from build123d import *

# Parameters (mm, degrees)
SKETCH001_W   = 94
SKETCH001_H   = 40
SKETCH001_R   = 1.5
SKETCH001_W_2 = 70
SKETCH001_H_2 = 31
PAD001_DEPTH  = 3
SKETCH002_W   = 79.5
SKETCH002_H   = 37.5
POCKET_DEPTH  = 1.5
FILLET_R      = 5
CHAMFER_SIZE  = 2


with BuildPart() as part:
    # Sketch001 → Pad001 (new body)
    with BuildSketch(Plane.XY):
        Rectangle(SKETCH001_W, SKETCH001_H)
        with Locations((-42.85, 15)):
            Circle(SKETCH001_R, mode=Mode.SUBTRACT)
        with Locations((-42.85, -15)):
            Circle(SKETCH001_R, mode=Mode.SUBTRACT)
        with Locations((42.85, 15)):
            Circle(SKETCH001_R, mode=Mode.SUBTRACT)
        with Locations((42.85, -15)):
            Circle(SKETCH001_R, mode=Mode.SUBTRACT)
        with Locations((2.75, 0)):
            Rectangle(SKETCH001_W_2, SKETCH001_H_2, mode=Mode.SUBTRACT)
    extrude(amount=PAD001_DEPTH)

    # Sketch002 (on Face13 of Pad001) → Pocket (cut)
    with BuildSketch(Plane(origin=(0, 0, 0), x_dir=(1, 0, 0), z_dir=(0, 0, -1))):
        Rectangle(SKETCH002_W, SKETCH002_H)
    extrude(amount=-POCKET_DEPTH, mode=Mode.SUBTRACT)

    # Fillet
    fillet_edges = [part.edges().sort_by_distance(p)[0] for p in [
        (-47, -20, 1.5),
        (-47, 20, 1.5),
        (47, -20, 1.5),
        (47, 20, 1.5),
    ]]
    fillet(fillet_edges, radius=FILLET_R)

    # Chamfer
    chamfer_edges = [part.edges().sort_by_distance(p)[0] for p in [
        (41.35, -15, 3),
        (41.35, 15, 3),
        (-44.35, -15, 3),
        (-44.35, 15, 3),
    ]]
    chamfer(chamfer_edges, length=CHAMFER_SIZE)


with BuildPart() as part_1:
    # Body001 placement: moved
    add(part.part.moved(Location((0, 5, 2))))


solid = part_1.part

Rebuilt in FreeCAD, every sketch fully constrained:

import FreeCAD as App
import Part
import Sketcher
from FreeCAD import Vector
Q = App.Units.Quantity


def edges_at(feature, points):
    """Names of the edges that pass closest to the given points."""
    edges = feature.Shape.Edges
    near = lambda p: min(range(len(edges)), key=lambda i: edges[i].distToShape(Part.Vertex(*p))[0])
    return sorted({f"Edge{near(p) + 1}" for p in points})


def add_polygon(sketch, points):
    """Adds a closed chain of lines whose ends are joined by coincident constraints."""
    first, n = sketch.GeometryCount, len(points)
    for a, b in zip(points, points[1:] + points[:1]):
        sketch.addGeometry(Part.LineSegment(App.Vector(*a, 0), App.Vector(*b, 0)), False)
    for i in range(n):
        sketch.addConstraint(Sketcher.Constraint("Coincident", first + i, 2, first + (i + 1) % n, 1))

doc = App.newDocument("Part")
body = doc.addObject("PartDesign::Body", "Body")

# Sketch on XY plane
sketch1 = body.newObject("Sketcher::SketchObject", "Sketch")
sketch1.AttachmentSupport = (doc.getObject("XY_Plane"), [""])
sketch1.MapMode = "FlatFace"
add_polygon(sketch1, [(-47, 20), (-47, -20), (47, -20), (47, 20)])  # lines 0-3
sketch1.addGeometry(Part.Circle(Vector(-42.9, -15, 0), Vector(0, 0, 1), 1.5), False)  # 4
sketch1.addGeometry(Part.Circle(Vector(42.9, -15, 0), Vector(0, 0, 1), 1.5), False)  # 5
sketch1.addGeometry(Part.Circle(Vector(-42.9, 15, 0), Vector(0, 0, 1), 1.5), False)  # 6
add_polygon(sketch1, [(37.8, -15.5), (-32.2, -15.5), (-32.2, 15.5), (37.8, 15.5)])  # lines 7-10
sketch1.addGeometry(Part.Circle(Vector(42.9, 15, 0), Vector(0, 0, 1), 1.5), False)  # 11
sketch1.addConstraint([
    Sketcher.Constraint("Vertical", 0),
    Sketcher.Constraint("Horizontal", 1),
    Sketcher.Constraint("Vertical", 2),
    Sketcher.Constraint("Horizontal", 3),
    Sketcher.Constraint("Horizontal", 7),
    Sketcher.Constraint("Vertical", 8),
    Sketcher.Constraint("Horizontal", 9),
    Sketcher.Constraint("Vertical", 10),
    Sketcher.Constraint("Equal", 4, 5),
    Sketcher.Constraint("Equal", 5, 6),
    Sketcher.Constraint("Equal", 6, 11),
    Sketcher.Constraint("Symmetric", 5, 3, 6, 3, -1, 1),
    Sketcher.Constraint("Symmetric", 4, 3, 11, 3, -1, 1),
    Sketcher.Constraint("Symmetric", 0, 2, 2, 2, -1, 1),
    Sketcher.Constraint("Symmetric", 4, 3, 5, 3, -2),
    Sketcher.Constraint("Diameter", 4, Q("3 mm")),
    Sketcher.Constraint("DistanceX", 1, 1, 1, 2, Q("94 mm")),
    Sketcher.Constraint("DistanceX", 7, 2, 7, 1, Q("70 mm")),
    Sketcher.Constraint("DistanceY", 0, 2, 0, 1, Q("40 mm")),
    Sketcher.Constraint("DistanceY", 8, 1, 8, 2, Q("31 mm")),
    Sketcher.Constraint("DistanceY", 4, 3, -1, 1, Q("15 mm")),
    Sketcher.Constraint("DistanceY", 7, 2, -1, 1, Q("15.5 mm")),
    Sketcher.Constraint("DistanceX", 4, 3, 5, 3, Q("85.7 mm")),
    Sketcher.Constraint("DistanceX", 4, 3, 7, 2, Q("10.6 mm")),
])
pad1 = body.newObject("PartDesign::Pad", "Pad")
pad1.Profile = sketch1
pad1.Length = 3

# Sketch on XY plane
sketch2 = body.newObject("Sketcher::SketchObject", "Sketch001")
sketch2.AttachmentSupport = (doc.getObject("XY_Plane"), [""])
sketch2.MapMode = "FlatFace"
add_polygon(sketch2, [(-40, -19), (-40, 19), (40, 19), (40, -19)])  # lines 0-3
sketch2.addConstraint([
    Sketcher.Constraint("Vertical", 0),
    Sketcher.Constraint("Horizontal", 1),
    Sketcher.Constraint("Vertical", 2),
    Sketcher.Constraint("Horizontal", 3),
    Sketcher.Constraint("Symmetric", 0, 2, 2, 2, -1, 1),
    Sketcher.Constraint("DistanceX", 1, 1, 1, 2, Q("79.5 mm")),
    Sketcher.Constraint("DistanceY", 0, 1, 0, 2, Q("37.5 mm")),
])
pocket1 = body.newObject("PartDesign::Pocket", "Pocket")
pocket1.Profile = sketch2
pocket1.Length = 1.5
pocket1.Reversed = True
doc.recompute()

fillet = body.newObject("PartDesign::Fillet", "Fillet")
fillet.Base = (pocket1, edges_at(pocket1, [
    (-47, -20, 1.5),
    (-47, 20, 1.5),
    (47, -20, 1.5),
    (47, 20, 1.5),
]))
fillet.Radius = 5
doc.recompute()

chamfer = body.newObject("PartDesign::Chamfer", "Chamfer")
chamfer.Base = (fillet, edges_at(fillet, [
    (41.35, -15, 3),
    (41.35, 15, 3),
    (-44.35, -15, 3),
    (-44.35, 15, 3),
]))
chamfer.Size = 2
body2 = doc.addObject("PartDesign::Body", "Body001")
doc.recompute()

body.Placement = App.Placement(Vector(0, 5, 2), App.Rotation(Vector(0, 0, 1), 0))
boolean = body2.newObject("PartDesign::Boolean", "Boolean")
boolean.Type = "Fuse"
boolean.addObjects([body])

doc.recompute()
